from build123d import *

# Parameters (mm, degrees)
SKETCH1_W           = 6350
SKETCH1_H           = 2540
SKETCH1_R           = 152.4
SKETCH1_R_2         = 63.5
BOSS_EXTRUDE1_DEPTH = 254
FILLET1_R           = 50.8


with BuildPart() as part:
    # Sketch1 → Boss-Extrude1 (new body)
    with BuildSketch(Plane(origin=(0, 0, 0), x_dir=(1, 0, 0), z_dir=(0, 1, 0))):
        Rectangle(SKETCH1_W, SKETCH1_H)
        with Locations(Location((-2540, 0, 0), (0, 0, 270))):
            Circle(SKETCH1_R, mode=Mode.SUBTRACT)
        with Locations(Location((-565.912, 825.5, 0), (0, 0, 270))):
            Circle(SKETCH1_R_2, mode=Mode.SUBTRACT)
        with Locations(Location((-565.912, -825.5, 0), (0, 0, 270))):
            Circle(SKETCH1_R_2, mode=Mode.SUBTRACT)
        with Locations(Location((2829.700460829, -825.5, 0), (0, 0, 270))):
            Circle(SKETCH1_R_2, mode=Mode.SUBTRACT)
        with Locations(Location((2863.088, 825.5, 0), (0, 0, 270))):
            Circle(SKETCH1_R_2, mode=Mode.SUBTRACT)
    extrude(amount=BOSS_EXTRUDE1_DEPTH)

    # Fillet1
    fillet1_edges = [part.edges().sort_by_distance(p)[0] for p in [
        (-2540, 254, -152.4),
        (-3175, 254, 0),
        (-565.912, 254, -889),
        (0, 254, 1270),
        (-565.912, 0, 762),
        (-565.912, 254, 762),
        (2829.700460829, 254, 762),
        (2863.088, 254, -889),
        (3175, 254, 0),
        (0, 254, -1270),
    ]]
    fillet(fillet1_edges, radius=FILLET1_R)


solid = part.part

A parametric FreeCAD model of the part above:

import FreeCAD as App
import Part
import Sketcher
from FreeCAD import Vector
Q = App.Units.Quantity


def edges_at(feature, points):
    """Names of the edges that pass closest to the given points."""
    edges = feature.Shape.Edges
    near = lambda p: min(range(len(edges)), key=lambda i: edges[i].distToShape(Part.Vertex(*p))[0])
    return sorted({f"Edge{near(p) + 1}" for p in points})

doc = App.newDocument("Part")
body = doc.addObject("PartDesign::Body", "Body")

# Sketch on XZ plane
sketch1 = body.newObject("Sketcher::SketchObject", "Sketch")
sketch1.AttachmentSupport = (doc.getObject("XZ_Plane"), [""])
sketch1.MapMode = "FlatFace"
sketch1.addGeometry([
    Part.LineSegment(Vector(-3175, -1270, 0), Vector(-3175, 1270, 0)),  # 0
    Part.LineSegment(Vector(-3175, 1270, 0), Vector(3175, 1270, 0)),  # 1
    Part.LineSegment(Vector(3175, 1270, 0), Vector(3175, -1270, 0)),  # 2
    Part.LineSegment(Vector(3175, -1270, 0), Vector(-3175, -1270, 0)),  # 3
    Part.Circle(Vector(-566, 826, 0), Vector(0, 0, 1), 64),  # 4
    Part.Circle(Vector(2830, 826, 0), Vector(0, 0, 1), 64),  # 5
    Part.Circle(Vector(-2540, 0, 0), Vector(0, 0, 1), 152),  # 6
    Part.Circle(Vector(-566, -826, 0), Vector(0, 0, 1), 64),  # 7
    Part.Circle(Vector(2863, -826, 0), Vector(0, 0, 1), 64),  # 8
], False)
sketch1.addConstraint([
    Sketcher.Constraint("Coincident", 0, 2, 1, 1),
    Sketcher.Constraint("Coincident", 1, 2, 2, 1),
    Sketcher.Constraint("Coincident", 2, 2, 3, 1),
    Sketcher.Constraint("Coincident", 3, 2, 0, 1),
    Sketcher.Constraint("Vertical", 0),
    Sketcher.Constraint("Horizontal", 1),
    Sketcher.Constraint("Vertical", 2),
    Sketcher.Constraint("Horizontal", 3),
    Sketcher.Constraint("Equal", 4, 5),
    Sketcher.Constraint("Equal", 5, 7),
    Sketcher.Constraint("Equal", 7, 8),
    Sketcher.Constraint("Symmetric", 0, 2, 2, 2, -1, 1),
    Sketcher.Constraint("Symmetric", 4, 3, 7, 3, -1),
    Sketcher.Constraint("PointOnObject", 6, 3, -1),
    Sketcher.Constraint("Horizontal", 4, 3, 5, 3),
    Sketcher.Constraint("Horizontal", 7, 3, 8, 3),
    Sketcher.Constraint("Diameter", 4, Q("5 in")),
    Sketcher.Constraint("Diameter", 6, Q("12 in")),
    Sketcher.Constraint("DistanceX", 1, 1, 1, 2, Q("250 in")),
    Sketcher.Constraint("DistanceY", 0, 1, 0, 2, Q("100 in")),
    Sketcher.Constraint("DistanceX", 6, 3, -1, 1, Q("100 in")),
    Sketcher.Constraint("DistanceY", 7, 3, 4, 3, Q("65 in")),
    Sketcher.Constraint("DistanceX", 7, 3, 8, 3, Q("135 in")),
    Sketcher.Constraint("DistanceX", 4, 3, -1, 1, Q("22.28 in")),
    Sketcher.Constraint("DistanceX", -1, 1, 5, 3, Q("2829.700461 mm")),
])
pad1 = body.newObject("PartDesign::Pad", "Pad")
pad1.Profile = sketch1
pad1.Length = Q("10 in")
pad1.Reversed = True
doc.recompute()

fillet = body.newObject("PartDesign::Fillet", "Fillet")
fillet.Base = (pad1, edges_at(pad1, [
    (-2540, 254, -152.4),
    (-3175, 254, 0),
    (-565.912, 254, -889),
    (0, 254, 1270),
    (-565.912, 0, 762),
    (-565.912, 254, 762),
    (2829.7, 254, 762),
    (2863.088, 254, -889),
    (3175, 254, 0),
    (0, 254, -1270),
]))
fillet.Radius = Q("2 in")

doc.recompute()
